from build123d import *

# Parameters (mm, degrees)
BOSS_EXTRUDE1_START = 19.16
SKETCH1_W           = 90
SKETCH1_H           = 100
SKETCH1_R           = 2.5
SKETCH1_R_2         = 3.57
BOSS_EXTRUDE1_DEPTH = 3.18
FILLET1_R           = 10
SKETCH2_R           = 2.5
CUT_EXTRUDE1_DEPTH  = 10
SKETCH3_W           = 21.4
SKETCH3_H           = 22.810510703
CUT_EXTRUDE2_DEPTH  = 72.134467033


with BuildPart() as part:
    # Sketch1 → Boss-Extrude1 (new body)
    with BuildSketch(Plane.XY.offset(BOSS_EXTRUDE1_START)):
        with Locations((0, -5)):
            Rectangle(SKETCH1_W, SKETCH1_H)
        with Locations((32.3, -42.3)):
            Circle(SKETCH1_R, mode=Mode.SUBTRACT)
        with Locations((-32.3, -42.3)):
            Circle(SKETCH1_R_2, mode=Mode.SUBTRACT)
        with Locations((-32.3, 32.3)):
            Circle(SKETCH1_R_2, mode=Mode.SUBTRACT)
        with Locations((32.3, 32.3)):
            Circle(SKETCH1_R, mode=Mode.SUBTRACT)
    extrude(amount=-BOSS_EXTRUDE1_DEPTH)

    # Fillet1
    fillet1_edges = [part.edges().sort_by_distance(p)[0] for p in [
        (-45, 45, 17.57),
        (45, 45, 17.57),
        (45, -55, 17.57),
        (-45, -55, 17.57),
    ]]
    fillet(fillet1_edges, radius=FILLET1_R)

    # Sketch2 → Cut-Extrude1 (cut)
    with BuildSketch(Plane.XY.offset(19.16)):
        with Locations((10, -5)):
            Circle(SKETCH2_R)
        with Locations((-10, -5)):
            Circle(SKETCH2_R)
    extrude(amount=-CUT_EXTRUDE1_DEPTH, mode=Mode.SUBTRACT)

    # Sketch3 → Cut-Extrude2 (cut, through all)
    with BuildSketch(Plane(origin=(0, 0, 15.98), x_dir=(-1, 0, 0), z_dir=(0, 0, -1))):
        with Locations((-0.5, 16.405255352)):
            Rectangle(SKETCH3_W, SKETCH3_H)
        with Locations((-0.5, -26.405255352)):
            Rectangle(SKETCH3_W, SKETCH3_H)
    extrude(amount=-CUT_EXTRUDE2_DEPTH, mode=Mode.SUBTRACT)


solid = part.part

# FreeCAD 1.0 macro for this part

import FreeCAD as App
import Part
import Sketcher

V = App.Vector


def edges_at(feature, points):
    """Names of the edges that pass closest to the given points."""
    edges = feature.Shape.Edges
    near = lambda p: min(range(len(edges)), key=lambda i: edges[i].distToShape(Part.Vertex(*p))[0])
    return sorted({f"Edge{near(p) + 1}" for p in points})

doc = App.newDocument("Part")
body = doc.addObject("PartDesign::Body", "Body")

sketch1 = body.newObject("Sketcher::SketchObject", "Sketch")
sketch1.AttachmentSupport = (doc.getObject("XY_Plane"), [""])
sketch1.MapMode = "FlatFace"
sketch1.AttachmentOffset = App.Placement(V(0, 0, 19.16), App.Rotation())
sketch1.addGeometry([
    Part.LineSegment(V(-45, 45, 0), V(-45, -55, 0)),
    Part.LineSegment(V(-45, -55, 0), V(45, -55, 0)),
    Part.LineSegment(V(45, -55, 0), V(45, 45, 0)),
    Part.LineSegment(V(45, 45, 0), V(-45, 45, 0)),
    Part.Circle(V(-32.3, -42.3, 0), V(0, 0, 1), 3.6),
    Part.Circle(V(32.3, -42.3, 0), V(0, 0, 1), 2.5),
    Part.Circle(V(-32.3, 32.3, 0), V(0, 0, 1), 3.6),
    Part.Circle(V(32.3, 32.3, 0), V(0, 0, 1), 2.5),
], False)
sketch1.addConstraint([
    Sketcher.Constraint("Coincident", 0, 2, 1, 1),
    Sketcher.Constraint("Coincident", 1, 2, 2, 1),
    Sketcher.Constraint("Coincident", 2, 2, 3, 1),
    Sketcher.Constraint("Coincident", 3, 2, 0, 1),
    Sketcher.Constraint("Vertical", 0),
    Sketcher.Constraint("Horizontal", 1),
    Sketcher.Constraint("Vertical", 2),
    Sketcher.Constraint("Horizontal", 3),
    Sketcher.Constraint("Equal", 4, 6),
    Sketcher.Constraint("Equal", 5, 7),
    Sketcher.Constraint("Symmetric", 4, 3, 5, 3, -2),
    Sketcher.Constraint("Symmetric", 6, 3, 7, 3, -2),
    Sketcher.Constraint("Vertical", 4, 3, 6, 3),
    Sketcher.Constraint("Diameter", 5, 5.0),
    Sketcher.Constraint("Diameter", 4, 7.14),
    Sketcher.Constraint("DistanceX", 1, 1, 1, 2, 90.0),
    Sketcher.Constraint("DistanceY", 0, 2, 0, 1, 100.0),
    Sketcher.Constraint("DistanceX", 0, 2, -1, 1, 45.0),
    Sketcher.Constraint("DistanceY", 0, 2, -1, 1, 55.0),
    Sketcher.Constraint("DistanceX", 4, 3, -1, 1, 32.3),
    Sketcher.Constraint("DistanceY", 4, 3, -1, 1, 42.3),
    Sketcher.Constraint("DistanceY", -1, 1, 6, 3, 32.3),
])
pad1 = body.newObject("PartDesign::Pad", "Pad")
pad1.Profile = sketch1
pad1.Length = 3.18
pad1.Reversed = True
doc.recompute()

fillet = body.newObject("PartDesign::Fillet", "Fillet")
fillet.Base = (pad1, edges_at(pad1, [
    (-45, 45, 17.57),
    (45, 45, 17.57),
    (45, -55, 17.57),
    (-45, -55, 17.57),
]))
fillet.Radius = 10

sketch2 = body.newObject("Sketcher::SketchObject", "Sketch001")
sketch2.AttachmentSupport = (doc.getObject("XY_Plane"), [""])
sketch2.MapMode = "FlatFace"
sketch2.AttachmentOffset = App.Placement(V(0, 0, 19.16), App.Rotation())
sketch2.addGeometry([
    Part.Circle(V(10, -5, 0), V(0, 0, 1), 2.5),
    Part.Circle(V(-10, -5, 0), V(0, 0, 1), 2.5),
], False)
sketch2.addConstraint([
    Sketcher.Constraint("Equal", 0, 1),
    Sketcher.Constraint("Symmetric", 0, 3, 1, 3, -2),
    Sketcher.Constraint("Diameter", 0, 5.0),
    Sketcher.Constraint("DistanceX", -1, 1, 0, 3, 10.0),
    Sketcher.Constraint("DistanceY", 0, 3, -1, 1, 5.0),
])
pocket1 = body.newObject("PartDesign::Pocket", "Pocket")
pocket1.Profile = sketch2
pocket1.Length = 10

sketch3 = body.newObject("Sketcher::SketchObject", "Sketch002")
sketch3.AttachmentSupport = (doc.getObject("XY_Plane"), [""])
sketch3.MapMode = "FlatFace"
sketch3.AttachmentOffset = App.Placement(V(0, 0, 15.98), App.Rotation())
sketch3.addGeometry([
    Part.LineSegment(V(11, 28, 0), V(11, 5, 0)),
    Part.LineSegment(V(11, 5, 0), V(-10, 5, 0)),
    Part.LineSegment(V(-10, 5, 0), V(-10, 28, 0)),
    Part.LineSegment(V(-10, 28, 0), V(11, 28, 0)),
    Part.LineSegment(V(11, -15, 0), V(11, -38, 0)),
    Part.LineSegment(V(11, -38, 0), V(-10, -38, 0)),
    Part.LineSegment(V(-10, -38, 0), V(-10, -15, 0)),
    Part.LineSegment(V(-10, -15, 0), V(11, -15, 0)),
], False)
sketch3.addConstraint([
    Sketcher.Constraint("Coincident", 0, 2, 1, 1),
    Sketcher.Constraint("Coincident", 1, 2, 2, 1),
    Sketcher.Constraint("Coincident", 2, 2, 3, 1),
    Sketcher.Constraint("Coincident", 3, 2, 0, 1),
    Sketcher.Constraint("Coincident", 4, 2, 5, 1),
    Sketcher.Constraint("Coincident", 5, 2, 6, 1),
    Sketcher.Constraint("Coincident", 6, 2, 7, 1),
    Sketcher.Constraint("Coincident", 7, 2, 4, 1),
    Sketcher.Constraint("Vertical", 0),
    Sketcher.Constraint("Horizontal", 1),
    Sketcher.Constraint("Vertical", 2),
    Sketcher.Constraint("Horizontal", 3),
    Sketcher.Constraint("Vertical", 4),
    Sketcher.Constraint("Horizontal", 5),
    Sketcher.Constraint("Vertical", 6),
    Sketcher.Constraint("Horizontal", 7),
    Sketcher.Constraint("Vertical", 3, 2, 4, 2),
    Sketcher.Constraint("Vertical", 2, 2, 5, 2),
    Sketcher.Constraint("Equal", 2, 4),
    Sketcher.Constraint("DistanceX", 1, 2, 1, 1, 21.4),
    Sketcher.Constraint("DistanceY", -1, 1, 0, 2, 5.0),
    Sketcher.Constraint("DistanceY", 6, 2, -1, 1, 15.0),
    Sketcher.Constraint("DistanceX", -1, 1, 0, 2, 11.2),
    Sketcher.Constraint("DistanceY", 0, 2, 0, 1, 22.810511),
])
pocket2 = body.newObject("PartDesign::Pocket", "Pocket001")
pocket2.Profile = sketch3
pocket2.Type = "ThroughAll"
pocket2.Reversed = True

doc.recompute()
